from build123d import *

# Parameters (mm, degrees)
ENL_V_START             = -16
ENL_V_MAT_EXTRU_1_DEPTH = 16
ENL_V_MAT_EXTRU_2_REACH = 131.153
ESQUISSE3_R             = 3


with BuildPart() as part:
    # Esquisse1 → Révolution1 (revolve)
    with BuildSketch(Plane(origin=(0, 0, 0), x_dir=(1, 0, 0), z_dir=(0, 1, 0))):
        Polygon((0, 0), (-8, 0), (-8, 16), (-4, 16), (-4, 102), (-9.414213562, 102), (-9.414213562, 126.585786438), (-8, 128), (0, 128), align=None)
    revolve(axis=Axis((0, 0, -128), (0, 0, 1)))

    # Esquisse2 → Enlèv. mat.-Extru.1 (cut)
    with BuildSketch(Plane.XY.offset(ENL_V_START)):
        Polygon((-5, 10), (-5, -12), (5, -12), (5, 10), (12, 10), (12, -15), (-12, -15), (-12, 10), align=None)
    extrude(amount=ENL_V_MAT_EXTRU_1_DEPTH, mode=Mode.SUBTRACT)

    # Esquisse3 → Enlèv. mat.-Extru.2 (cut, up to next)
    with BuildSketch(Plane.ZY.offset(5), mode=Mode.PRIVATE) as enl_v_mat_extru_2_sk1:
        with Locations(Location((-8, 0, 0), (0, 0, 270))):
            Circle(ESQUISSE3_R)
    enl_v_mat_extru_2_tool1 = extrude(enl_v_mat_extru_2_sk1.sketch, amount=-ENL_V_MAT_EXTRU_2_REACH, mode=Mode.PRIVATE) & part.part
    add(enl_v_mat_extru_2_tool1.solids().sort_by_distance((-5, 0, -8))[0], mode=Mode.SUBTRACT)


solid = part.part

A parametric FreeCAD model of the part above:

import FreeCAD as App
import Part
import Sketcher
from FreeCAD import Vector
Q = App.Units.Quantity

doc = App.newDocument("Part")
body = doc.addObject("PartDesign::Body", "Body")

sketch1 = body.newObject("Sketcher::SketchObject", "Sketch")
sketch1.AttachmentSupport = (doc.getObject("XZ_Plane"), [""])
sketch1.MapMode = "FlatFace"
sketch1.addGeometry([
    Part.LineSegment(Vector(-8, 0, 0), Vector(0, 0, 0)),
    Part.LineSegment(Vector(0, 0, 0), Vector(0, -128, 0)),
    Part.LineSegment(Vector(0, -128, 0), Vector(-8, -128, 0)),
    Part.LineSegment(Vector(-8, -128, 0), Vector(-9.414214, -126.585786, 0)),
    Part.LineSegment(Vector(-9.414214, -126.585786, 0), Vector(-9.414214, -102, 0)),
    Part.LineSegment(Vector(-9.414214, -102, 0), Vector(-4, -102, 0)),
    Part.LineSegment(Vector(-4, -102, 0), Vector(-4, -16, 0)),
    Part.LineSegment(Vector(-4, -16, 0), Vector(-8, -16, 0)),
    Part.LineSegment(Vector(-8, -16, 0), Vector(-8, 0, 0)),
], False)
sketch1.addConstraint([
    Sketcher.Constraint("Coincident", 0, 2, 1, 1),
    Sketcher.Constraint("Coincident", 1, 2, 2, 1),
    Sketcher.Constraint("Coincident", 2, 2, 3, 1),
    Sketcher.Constraint("Coincident", 3, 2, 4, 1),
    Sketcher.Constraint("Coincident", 4, 2, 5, 1),
    Sketcher.Constraint("Coincident", 5, 2, 6, 1),
    Sketcher.Constraint("Coincident", 6, 2, 7, 1),
    Sketcher.Constraint("Coincident", 7, 2, 8, 1),
    Sketcher.Constraint("Coincident", 8, 2, 0, 1),
    Sketcher.Constraint("Horizontal", 0),
    Sketcher.Constraint("Vertical", 1),
    Sketcher.Constraint("Horizontal", 2),
    Sketcher.Constraint("Vertical", 4),
    Sketcher.Constraint("Horizontal", 5),
    Sketcher.Constraint("Vertical", 6),
    Sketcher.Constraint("Horizontal", 7),
    Sketcher.Constraint("Vertical", 8),
    Sketcher.Constraint("Coincident", 0, 2, -1, 1),
    Sketcher.Constraint("Vertical", 2, 2, 7, 2),
    Sketcher.Constraint("DistanceX", 0, 1, 0, 2, Q("8 mm")),
    Sketcher.Constraint("DistanceX", 7, 2, 7, 1, Q("4 mm")),
    Sketcher.Constraint("DistanceY", 1, 2, 1, 1, Q("128 mm")),
    Sketcher.Constraint("DistanceY", 6, 1, 6, 2, Q("86 mm")),
    Sketcher.Constraint("DistanceY", 8, 1, 8, 2, Q("16 mm")),
    Sketcher.Constraint("Angle", 3, Q("135 deg")),
    Sketcher.Constraint("Distance", 3, Q("2 mm")),
])
revolution = body.newObject("PartDesign::Revolution", "Revolution")
revolution.Profile = sketch1
revolution.ReferenceAxis = (sketch1, ["V_Axis"])
revolution.Angle = 360

sketch2 = body.newObject("Sketcher::SketchObject", "Sketch001")
sketch2.AttachmentSupport = (doc.getObject("XY_Plane"), [""])
sketch2.MapMode = "FlatFace"
sketch2.AttachmentOffset = App.Placement(Vector(0, 0, -16), App.Rotation())
sketch2.addGeometry([
    Part.LineSegment(Vector(-5, -12, 0), Vector(-5, 10, 0)),
    Part.LineSegment(Vector(-5, 10, 0), Vector(-12, 10, 0)),
    Part.LineSegment(Vector(-12, 10, 0), Vector(-12, -15, 0)),
    Part.LineSegment(Vector(-12, -15, 0), Vector(12, -15, 0)),
    Part.LineSegment(Vector(12, -15, 0), Vector(12, 10, 0)),
    Part.LineSegment(Vector(12, 10, 0), Vector(5, 10, 0)),
    Part.LineSegment(Vector(5, 10, 0), Vector(5, -12, 0)),
    Part.LineSegment(Vector(5, -12, 0), Vector(-5, -12, 0)),
], False)
sketch2.addConstraint([
    Sketcher.Constraint("Coincident", 0, 2, 1, 1),
    Sketcher.Constraint("Coincident", 1, 2, 2, 1),
    Sketcher.Constraint("Coincident", 2, 2, 3, 1),
    Sketcher.Constraint("Coincident", 3, 2, 4, 1),
    Sketcher.Constraint("Coincident", 4, 2, 5, 1),
    Sketcher.Constraint("Coincident", 5, 2, 6, 1),
    Sketcher.Constraint("Coincident", 6, 2, 7, 1),
    Sketcher.Constraint("Coincident", 7, 2, 0, 1),
    Sketcher.Constraint("Vertical", 0),
    Sketcher.Constraint("Horizontal", 1),
    Sketcher.Constraint("Vertical", 2),
    Sketcher.Constraint("Horizontal", 3),
    Sketcher.Constraint("Vertical", 4),
    Sketcher.Constraint("Horizontal", 5),
    Sketcher.Constraint("Vertical", 6),
    Sketcher.Constraint("Horizontal", 7),
    Sketcher.Constraint("Symmetric", 1, 2, 4, 2, -2),
    Sketcher.Constraint("Equal", 1, 5),
    Sketcher.Constraint("DistanceX", 1, 2, 1, 1, Q("7 mm")),
    Sketcher.Constraint("DistanceX", 3, 1, 3, 2, Q("24 mm")),
    Sketcher.Constraint("DistanceY", 0, 1, 0, 2, Q("22 mm")),
    Sketcher.Constraint("DistanceY", 2, 2, 2, 1, Q("25 mm")),
    Sketcher.Constraint("DistanceY", -1, 1, 0, 2, Q("10 mm")),
])
pocket1 = body.newObject("PartDesign::Pocket", "Pocket")
pocket1.Profile = sketch2
pocket1.Length = 16
pocket1.Reversed = True

sketch3 = body.newObject("Sketcher::SketchObject", "Sketch002")
sketch3.AttachmentSupport = (doc.getObject("YZ_Plane"), [""])
sketch3.MapMode = "FlatFace"
sketch3.AttachmentOffset = App.Placement(Vector(0, 0, -5), App.Rotation())
sketch3.addGeometry(Part.Circle(Vector(0, -8, 0), Vector(0, 0, 1), 3), False)
sketch3.addConstraint([
    Sketcher.Constraint("PointOnObject", 0, 3, -2),
    Sketcher.Constraint("Diameter", 0, Q("6 mm")),
    Sketcher.Constraint("DistanceY", 0, 3, -1, 1, Q("8 mm")),
])
pocket2 = body.newObject("PartDesign::Pocket", "Pocket001")
pocket2.Profile = sketch3
pocket2.Type = "UpToFirst"
pocket2.Reversed = True

doc.recompute()
